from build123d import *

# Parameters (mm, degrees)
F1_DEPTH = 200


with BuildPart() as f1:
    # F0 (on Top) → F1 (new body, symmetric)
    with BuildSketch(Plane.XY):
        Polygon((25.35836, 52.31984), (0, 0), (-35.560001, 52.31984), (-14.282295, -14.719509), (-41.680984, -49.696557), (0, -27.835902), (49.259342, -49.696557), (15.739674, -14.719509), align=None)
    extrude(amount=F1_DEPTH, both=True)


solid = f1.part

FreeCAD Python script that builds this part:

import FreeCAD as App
import Part
import Sketcher
Q = App.Units.Quantity


def add_polygon(sketch, points):
    """Adds a closed chain of lines whose ends are joined by coincident constraints."""
    first, n = sketch.GeometryCount, len(points)
    for a, b in zip(points, points[1:] + points[:1]):
        sketch.addGeometry(Part.LineSegment(App.Vector(*a, 0), App.Vector(*b, 0)), False)
    for i in range(n):
        sketch.addConstraint(Sketcher.Constraint("Coincident", first + i, 2, first + (i + 1) % n, 1))

doc = App.newDocument("Part")
body = doc.addObject("PartDesign::Body", "Body")

# Sketch on XY plane
sketch1 = doc.addObject("Sketcher::SketchObject", "Sketch")
body.addObject(sketch1)
sketch1.AttachmentSupport = (doc.XY_Plane, [""])
sketch1.MapMode = "FlatFace"
add_polygon(sketch1, [(25, 52), (0, 0), (-36, 52), (-14, -15), (-42, -50), (0, -28), (49, -50), (16, -15)])  # lines 0-7
sketch1.addConstraint([
    Sketcher.Constraint("Coincident", 0, 2, -1, 1),
    Sketcher.Constraint("PointOnObject", 4, 2, -2),
    Sketcher.Constraint("Horizontal", 3, 2, 5, 2),
    Sketcher.Constraint("Horizontal", 2, 2, 6, 2),
    Sketcher.Constraint("Horizontal", 1, 2, 7, 2),
    Sketcher.Constraint("DistanceX", 1, 2, -1, 1, Q("35.560001 mm")),
    Sketcher.Constraint("Distance", 0, Q("58.141311 mm")),
    Sketcher.Constraint("Distance", 1, Q("63.260409 mm")),
    Sketcher.Constraint("Distance", 2, Q("70.33502 mm")),
    Sketcher.Constraint("Distance", 7, Q("67.72587 mm")),
    Sketcher.Constraint("DistanceY", 2, 2, -1, 1, Q("14.719509 mm")),
    Sketcher.Constraint("DistanceX", -1, 1, 5, 2, Q("49.259342 mm")),
    Sketcher.Constraint("DistanceX", 3, 2, 2, 2, Q("27.398689 mm")),
    Sketcher.Constraint("Distance", 3, Q("44.430643 mm")),
    Sketcher.Constraint("Distance", 4, Q("47.065833 mm")),
])
pad1 = doc.addObject("PartDesign::Pad", "Pad")
body.addObject(pad1)
pad1.Profile = sketch1
pad1.Length = 400
pad1.Midplane = True

doc.recompute()
